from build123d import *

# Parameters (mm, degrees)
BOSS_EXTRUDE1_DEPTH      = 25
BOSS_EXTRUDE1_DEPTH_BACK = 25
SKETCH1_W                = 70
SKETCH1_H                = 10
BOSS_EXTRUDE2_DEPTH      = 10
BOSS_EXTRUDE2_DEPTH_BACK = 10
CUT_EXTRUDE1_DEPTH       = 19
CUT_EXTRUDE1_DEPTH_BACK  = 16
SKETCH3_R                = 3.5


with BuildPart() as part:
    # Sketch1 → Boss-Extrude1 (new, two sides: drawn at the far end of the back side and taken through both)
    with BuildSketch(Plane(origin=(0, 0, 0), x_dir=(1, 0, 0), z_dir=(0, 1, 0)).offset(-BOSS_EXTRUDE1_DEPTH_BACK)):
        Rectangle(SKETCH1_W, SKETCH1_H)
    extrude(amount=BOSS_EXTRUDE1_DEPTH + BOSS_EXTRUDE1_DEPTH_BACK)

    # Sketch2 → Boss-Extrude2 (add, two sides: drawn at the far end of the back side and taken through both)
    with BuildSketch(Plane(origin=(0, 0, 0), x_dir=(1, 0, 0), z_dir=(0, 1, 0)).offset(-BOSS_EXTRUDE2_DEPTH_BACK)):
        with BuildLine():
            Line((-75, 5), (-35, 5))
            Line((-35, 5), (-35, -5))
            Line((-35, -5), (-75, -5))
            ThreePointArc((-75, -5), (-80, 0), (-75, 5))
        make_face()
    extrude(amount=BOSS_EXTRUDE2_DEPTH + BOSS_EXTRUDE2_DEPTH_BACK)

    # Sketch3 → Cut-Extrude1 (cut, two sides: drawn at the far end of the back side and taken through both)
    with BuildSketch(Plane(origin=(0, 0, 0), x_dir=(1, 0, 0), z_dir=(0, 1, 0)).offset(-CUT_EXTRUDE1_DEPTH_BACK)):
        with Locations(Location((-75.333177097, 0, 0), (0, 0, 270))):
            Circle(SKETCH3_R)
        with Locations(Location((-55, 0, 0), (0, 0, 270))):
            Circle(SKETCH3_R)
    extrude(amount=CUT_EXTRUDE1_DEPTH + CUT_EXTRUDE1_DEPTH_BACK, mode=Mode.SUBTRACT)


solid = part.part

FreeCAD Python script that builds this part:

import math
import FreeCAD as App
import Part
import Sketcher

V = App.Vector
Q = App.Units.Quantity


def add_polygon(sketch, points):
    """Adds a closed chain of lines whose ends are joined by coincident constraints."""
    first, n = sketch.GeometryCount, len(points)
    for a, b in zip(points, points[1:] + points[:1]):
        sketch.addGeometry(Part.LineSegment(App.Vector(*a, 0), App.Vector(*b, 0)), False)
    for i in range(n):
        sketch.addConstraint(Sketcher.Constraint("Coincident", first + i, 2, first + (i + 1) % n, 1))

doc = App.newDocument("Part")
body = doc.addObject("PartDesign::Body", "Body")

sketch1 = body.newObject("Sketcher::SketchObject", "Sketch")
sketch1.AttachmentSupport = (doc.getObject("XZ_Plane"), [""])
sketch1.MapMode = "FlatFace"
add_polygon(sketch1, [(-35, -5), (-35, 5), (35, 5), (35, -5)])
sketch1.addConstraint([
    Sketcher.Constraint("Vertical", 0),
    Sketcher.Constraint("Horizontal", 1),
    Sketcher.Constraint("Vertical", 2),
    Sketcher.Constraint("Horizontal", 3),
    Sketcher.Constraint("Symmetric", 0, 2, 2, 2, -1, 1),
    Sketcher.Constraint("DistanceX", 1, 1, 1, 2, Q("70 mm")),
    Sketcher.Constraint("DistanceY", 0, 1, 0, 2, Q("10 mm")),
])
pad1 = body.newObject("PartDesign::Pad", "Pad")
pad1.Profile = sketch1
pad1.Type = "TwoLengths"
pad1.Length = 25
pad1.Length2 = 25
pad1.Reversed = True

sketch2 = body.newObject("Sketcher::SketchObject", "Sketch001")
sketch2.AttachmentSupport = (doc.getObject("XZ_Plane"), [""])
sketch2.MapMode = "FlatFace"
sketch2.addGeometry([
    Part.LineSegment(V(-35, -5, 0), V(-75, -5, 0)),
    Part.ArcOfCircle(Part.Circle(V(-75, 0, 0), V(0, 0, 1), 5), math.radians(90), math.radians(270)),
    Part.LineSegment(V(-75, 5, 0), V(-35, 5, 0)),
    Part.LineSegment(V(-35, 5, 0), V(-35, -5, 0)),
], False)
sketch2.addConstraint([
    Sketcher.Constraint("Tangent", 0, 2, 1, 2),
    Sketcher.Constraint("Tangent", 1, 1, 2, 1),
    Sketcher.Constraint("Coincident", 2, 2, 3, 1),
    Sketcher.Constraint("Coincident", 3, 2, 0, 1),
    Sketcher.Constraint("Horizontal", 0),
    Sketcher.Constraint("Horizontal", 2),
    Sketcher.Constraint("Vertical", 3),
    Sketcher.Constraint("PointOnObject", 1, 3, -1),
    Sketcher.Constraint("Radius", 1, Q("5 mm")),
    Sketcher.Constraint("DistanceX", 0, 2, 0, 1, Q("40 mm")),
    Sketcher.Constraint("DistanceX", 1, 3, -1, 1, Q("75 mm")),
])
pad2 = body.newObject("PartDesign::Pad", "Pad001")
pad2.Profile = sketch2
pad2.Type = "TwoLengths"
pad2.Length = 10
pad2.Length2 = 10
pad2.Reversed = True

sketch3 = body.newObject("Sketcher::SketchObject", "Sketch002")
sketch3.AttachmentSupport = (doc.getObject("XZ_Plane"), [""])
sketch3.MapMode = "FlatFace"
sketch3.addGeometry([
    Part.Circle(V(-75.3, 0, 0), V(0, 0, 1), 3.5),
    Part.Circle(V(-55, 0, 0), V(0, 0, 1), 3.5),
], False)
sketch3.addConstraint([
    Sketcher.Constraint("Equal", 0, 1),
    Sketcher.Constraint("PointOnObject", 0, 3, -1),
    Sketcher.Constraint("PointOnObject", 1, 3, -1),
    Sketcher.Constraint("Diameter", 0, Q("7 mm")),
    Sketcher.Constraint("DistanceX", 1, 3, -1, 1, Q("55 mm")),
    Sketcher.Constraint("DistanceX", 0, 3, -1, 1, Q("75.333177 mm")),
])
pocket1 = body.newObject("PartDesign::Pocket", "Pocket")
pocket1.Profile = sketch3
pocket1.Type = "ThroughAll"
pocket1.Midplane = True

doc.recompute()
